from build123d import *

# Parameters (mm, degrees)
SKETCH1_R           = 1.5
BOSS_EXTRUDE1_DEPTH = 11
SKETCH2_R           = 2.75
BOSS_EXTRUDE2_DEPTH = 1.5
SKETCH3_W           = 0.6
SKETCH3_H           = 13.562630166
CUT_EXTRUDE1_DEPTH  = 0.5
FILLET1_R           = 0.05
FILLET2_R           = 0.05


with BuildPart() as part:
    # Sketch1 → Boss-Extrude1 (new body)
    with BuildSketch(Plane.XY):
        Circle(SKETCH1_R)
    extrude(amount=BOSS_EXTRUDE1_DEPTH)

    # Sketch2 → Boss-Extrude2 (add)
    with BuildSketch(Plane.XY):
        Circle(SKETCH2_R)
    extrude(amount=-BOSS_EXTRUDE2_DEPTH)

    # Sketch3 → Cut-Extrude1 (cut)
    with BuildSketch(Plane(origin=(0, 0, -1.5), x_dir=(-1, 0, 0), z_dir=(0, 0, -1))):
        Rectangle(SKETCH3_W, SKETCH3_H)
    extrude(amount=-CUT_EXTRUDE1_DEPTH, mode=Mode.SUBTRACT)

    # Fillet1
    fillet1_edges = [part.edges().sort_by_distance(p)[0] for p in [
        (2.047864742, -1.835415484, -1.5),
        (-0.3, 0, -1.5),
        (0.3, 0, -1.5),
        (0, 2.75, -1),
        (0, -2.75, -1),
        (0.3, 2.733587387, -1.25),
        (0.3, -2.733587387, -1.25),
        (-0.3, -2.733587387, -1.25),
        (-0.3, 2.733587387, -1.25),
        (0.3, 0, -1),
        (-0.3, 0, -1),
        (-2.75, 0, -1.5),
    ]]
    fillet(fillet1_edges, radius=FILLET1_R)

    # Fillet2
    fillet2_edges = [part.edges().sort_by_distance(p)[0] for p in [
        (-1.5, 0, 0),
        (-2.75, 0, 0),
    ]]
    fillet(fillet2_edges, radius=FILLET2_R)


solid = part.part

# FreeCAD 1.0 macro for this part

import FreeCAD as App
import Part
import Sketcher

V = App.Vector
Q = App.Units.Quantity


def edges_at(feature, points):
    """Names of the edges that pass closest to the given points."""
    edges = feature.Shape.Edges
    near = lambda p: min(range(len(edges)), key=lambda i: edges[i].distToShape(Part.Vertex(*p))[0])
    return sorted({f"Edge{near(p) + 1}" for p in points})


def add_polygon(sketch, points):
    """Adds a closed chain of lines whose ends are joined by coincident constraints."""
    first, n = sketch.GeometryCount, len(points)
    for a, b in zip(points, points[1:] + points[:1]):
        sketch.addGeometry(Part.LineSegment(App.Vector(*a, 0), App.Vector(*b, 0)), False)
    for i in range(n):
        sketch.addConstraint(Sketcher.Constraint("Coincident", first + i, 2, first + (i + 1) % n, 1))

doc = App.newDocument("Part")
params = doc.addObject("Spreadsheet::Sheet", "Params")
for row, (alias, value) in enumerate([
    ("sketch1_diameter", "3 mm"),
    ("pad1_length", "11 mm"),
    ("sketch2_diameter", "5.5 mm"),
    ("pad2_length", "1.5 mm"),
    ("sketch3_width", "0.6 mm"),
    ("pocket1_length", "0.5 mm"),
    ("fillet_radius", "0.05 mm"),
    ("fillet2_radius", "0.05 mm"),
], start=1):
    params.set(f"A{row}", alias)
    params.set(f"B{row}", "=" + value)
    params.setAlias(f"B{row}", alias)

body = doc.addObject("PartDesign::Body", "Body")

# Sketch on XY plane
sketch1 = doc.addObject("Sketcher::SketchObject", "Sketch")
body.addObject(sketch1)
sketch1.AttachmentSupport = (doc.XY_Plane, [""])
sketch1.MapMode = "FlatFace"
sketch1.addGeometry(Part.Circle(V(0, 0, 0), V(0, 0, 1), 1.5), False)
sketch1.addConstraint([
    Sketcher.Constraint("Coincident", 0, 3, -1, 1),
    Sketcher.Constraint("Diameter", 0, Q("3 mm")),
])
sketch1.setExpression("Constraints[1]", "Params.sketch1_diameter")
pad1 = doc.addObject("PartDesign::Pad", "Pad")
body.addObject(pad1)
pad1.Profile = sketch1
pad1.setExpression("Length", "Params.pad1_length")

# Sketch on XY plane
sketch2 = doc.addObject("Sketcher::SketchObject", "Sketch001")
body.addObject(sketch2)
sketch2.AttachmentSupport = (doc.XY_Plane, [""])
sketch2.MapMode = "FlatFace"
sketch2.addGeometry(Part.Circle(V(0, 0, 0), V(0, 0, 1), 2.8), False)
sketch2.addConstraint([
    Sketcher.Constraint("Coincident", 0, 3, -1, 1),
    Sketcher.Constraint("Diameter", 0, Q("5.5 mm")),
])
sketch2.setExpression("Constraints[1]", "Params.sketch2_diameter")
pad2 = doc.addObject("PartDesign::Pad", "Pad001")
body.addObject(pad2)
pad2.Profile = sketch2
pad2.setExpression("Length", "Params.pad2_length")
pad2.Reversed = True

# Sketch on XY plane
sketch3 = doc.addObject("Sketcher::SketchObject", "Sketch002")
body.addObject(sketch3)
sketch3.AttachmentSupport = (doc.XY_Plane, [""])
sketch3.MapMode = "FlatFace"
sketch3.AttachmentOffset = App.Placement(V(0, 0, -1.5), App.Rotation())
add_polygon(sketch3, [(0.3, 6.8), (0.3, -6.8), (-0.3, -6.8), (-0.3, 6.8)])  # lines 0-3
sketch3.addConstraint([
    Sketcher.Constraint("Vertical", 0),
    Sketcher.Constraint("Horizontal", 1),
    Sketcher.Constraint("Vertical", 2),
    Sketcher.Constraint("Horizontal", 3),
    Sketcher.Constraint("Symmetric", 0, 2, 2, 2, -1, 1),
    Sketcher.Constraint("DistanceX", 1, 2, 1, 1, Q("0.6 mm")),
    Sketcher.Constraint("DistanceY", 0, 2, 0, 1, Q("13.56263 mm")),
])
sketch3.setExpression("Constraints[9]", "Params.sketch3_width")
pocket1 = doc.addObject("PartDesign::Pocket", "Pocket")
body.addObject(pocket1)
pocket1.Profile = sketch3
pocket1.setExpression("Length", "Params.pocket1_length")
pocket1.Reversed = True
doc.recompute()

fillet = doc.addObject("PartDesign::Fillet", "Fillet")
body.addObject(fillet)
fillet.Base = (pocket1, edges_at(pocket1, [
    (2.048, -1.835, -1.5),
    (-0.3, 0, -1.5),
    (0.3, 0, -1.5),
    (0, 2.75, -1),
    (0, -2.75, -1),
    (0.3, 2.734, -1.25),
    (0.3, -2.734, -1.25),
    (-0.3, -2.734, -1.25),
    (-0.3, 2.734, -1.25),
    (0.3, 0, -1),
    (-0.3, 0, -1),
    (-2.75, 0, -1.5),
]))
fillet.setExpression("Radius", "Params.fillet_radius")
doc.recompute()

fillet2 = doc.addObject("PartDesign::Fillet", "Fillet001")
body.addObject(fillet2)
fillet2.Base = (fillet, edges_at(fillet, [(-1.5, 0, 0), (-2.75, 0, 0)]))
fillet2.setExpression("Radius", "Params.fillet2_radius")

doc.recompute()
